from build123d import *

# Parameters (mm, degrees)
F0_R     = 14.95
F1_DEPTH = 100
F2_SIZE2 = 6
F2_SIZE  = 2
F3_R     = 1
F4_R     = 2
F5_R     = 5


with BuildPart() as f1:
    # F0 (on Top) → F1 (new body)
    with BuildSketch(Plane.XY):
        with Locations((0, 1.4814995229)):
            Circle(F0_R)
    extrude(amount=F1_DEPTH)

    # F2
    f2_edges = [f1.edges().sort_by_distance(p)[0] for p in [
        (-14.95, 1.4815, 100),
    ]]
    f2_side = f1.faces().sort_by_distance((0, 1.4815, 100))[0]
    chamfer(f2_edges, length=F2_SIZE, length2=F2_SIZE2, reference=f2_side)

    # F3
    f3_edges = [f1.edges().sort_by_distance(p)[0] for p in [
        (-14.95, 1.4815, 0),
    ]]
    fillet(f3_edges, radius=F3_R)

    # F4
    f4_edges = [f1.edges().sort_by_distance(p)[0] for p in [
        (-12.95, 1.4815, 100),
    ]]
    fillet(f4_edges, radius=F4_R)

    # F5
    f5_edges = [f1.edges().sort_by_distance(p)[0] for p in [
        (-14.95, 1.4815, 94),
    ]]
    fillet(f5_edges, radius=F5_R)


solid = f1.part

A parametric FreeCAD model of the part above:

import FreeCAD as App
import Part
import Sketcher
Q = App.Units.Quantity


def edges_at(feature, points):
    """Names of the edges that pass closest to the given points."""
    edges = feature.Shape.Edges
    near = lambda p: min(range(len(edges)), key=lambda i: edges[i].distToShape(Part.Vertex(*p))[0])
    return sorted({f"Edge{near(p) + 1}" for p in points})

doc = App.newDocument("Part")
body = doc.addObject("PartDesign::Body", "Body")

sketch1 = body.newObject("Sketcher::SketchObject", "Sketch")
sketch1.AttachmentSupport = (doc.getObject("XY_Plane"), [""])
sketch1.MapMode = "FlatFace"
sketch1.addGeometry(Part.Circle(App.Vector(0, 1.4815, 0), App.Vector(0, 0, 1), 14.95), False)
sketch1.addConstraint(Sketcher.Constraint("PointOnObject", 0, 3, -2))
sketch1.addConstraint(Sketcher.Constraint("Diameter", 0, Q("29.9 mm")))
sketch1.addConstraint(Sketcher.Constraint("DistanceY", -1, 1, 0, 3, Q("1.4815 mm")))
pad1 = body.newObject("PartDesign::Pad", "Pad")
pad1.Profile = sketch1
pad1.Length = 100
doc.recompute()

chamfer = body.newObject("PartDesign::Chamfer", "Chamfer")
chamfer.Base = (pad1, edges_at(pad1, [(-14.95, 1.481, 100)]))
chamfer.ChamferType = "Two distances"
chamfer.Size = 2
chamfer.Size2 = 6
chamfer.FlipDirection = True
doc.recompute()

fillet = body.newObject("PartDesign::Fillet", "Fillet")
fillet.Base = (chamfer, edges_at(chamfer, [(-14.95, 1.481, 0)]))
fillet.Radius = 1
doc.recompute()

fillet2 = body.newObject("PartDesign::Fillet", "Fillet001")
fillet2.Base = (fillet, edges_at(fillet, [(-12.95, 1.481, 100)]))
fillet2.Radius = 2
doc.recompute()

fillet3 = body.newObject("PartDesign::Fillet", "Fillet002")
fillet3.Base = (fillet2, edges_at(fillet2, [(-14.95, 1.481, 94)]))
fillet3.Radius = 5

doc.recompute()
